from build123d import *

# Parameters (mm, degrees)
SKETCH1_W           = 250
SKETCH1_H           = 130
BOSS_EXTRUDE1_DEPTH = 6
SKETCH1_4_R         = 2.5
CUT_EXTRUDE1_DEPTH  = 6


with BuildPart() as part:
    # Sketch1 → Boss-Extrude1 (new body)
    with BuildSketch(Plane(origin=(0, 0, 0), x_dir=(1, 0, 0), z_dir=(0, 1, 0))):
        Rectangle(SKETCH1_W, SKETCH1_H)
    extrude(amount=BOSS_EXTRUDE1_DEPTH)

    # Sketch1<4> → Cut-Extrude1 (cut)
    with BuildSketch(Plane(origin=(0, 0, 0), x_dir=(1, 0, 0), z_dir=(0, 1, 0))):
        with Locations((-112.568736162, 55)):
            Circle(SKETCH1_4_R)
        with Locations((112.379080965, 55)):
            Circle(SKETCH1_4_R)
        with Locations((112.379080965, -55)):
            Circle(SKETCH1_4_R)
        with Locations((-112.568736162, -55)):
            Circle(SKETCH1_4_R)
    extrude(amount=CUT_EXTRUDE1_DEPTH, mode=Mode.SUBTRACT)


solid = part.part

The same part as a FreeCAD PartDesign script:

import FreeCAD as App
import Part
import Sketcher
Q = App.Units.Quantity

doc = App.newDocument("Part")
body = doc.addObject("PartDesign::Body", "Body")

# Sketch on XZ plane
sketch1 = doc.addObject("Sketcher::SketchObject", "Sketch")
body.addObject(sketch1)
sketch1.AttachmentSupport = (doc.XZ_Plane, [""])
sketch1.MapMode = "FlatFace"
sketch1.addGeometry(Part.LineSegment(App.Vector(-125, -65, 0), App.Vector(-125, 65, 0)), False)
sketch1.addGeometry(Part.LineSegment(App.Vector(-125, 65, 0), App.Vector(125, 65, 0)), False)
sketch1.addGeometry(Part.LineSegment(App.Vector(125, 65, 0), App.Vector(125, -65, 0)), False)
sketch1.addGeometry(Part.LineSegment(App.Vector(125, -65, 0), App.Vector(-125, -65, 0)), False)
sketch1.addConstraint(Sketcher.Constraint("Coincident", 0, 2, 1, 1))
sketch1.addConstraint(Sketcher.Constraint("Coincident", 1, 2, 2, 1))
sketch1.addConstraint(Sketcher.Constraint("Coincident", 2, 2, 3, 1))
sketch1.addConstraint(Sketcher.Constraint("Coincident", 3, 2, 0, 1))
sketch1.addConstraint(Sketcher.Constraint("Vertical", 0))
sketch1.addConstraint(Sketcher.Constraint("Horizontal", 1))
sketch1.addConstraint(Sketcher.Constraint("Vertical", 2))
sketch1.addConstraint(Sketcher.Constraint("Horizontal", 3))
sketch1.addConstraint(Sketcher.Constraint("Symmetric", 0, 2, 2, 2, -1, 1))
sketch1.addConstraint(Sketcher.Constraint("DistanceX", 1, 1, 1, 2, Q("250 mm")))
sketch1.addConstraint(Sketcher.Constraint("DistanceY", 0, 1, 0, 2, Q("130 mm")))
pad1 = doc.addObject("PartDesign::Pad", "Pad")
body.addObject(pad1)
pad1.Profile = sketch1
pad1.Length = 6
pad1.Reversed = True

# Sketch on XZ plane
sketch2 = doc.addObject("Sketcher::SketchObject", "Sketch001")
body.addObject(sketch2)
sketch2.AttachmentSupport = (doc.XZ_Plane, [""])
sketch2.MapMode = "FlatFace"
sketch2.addGeometry(Part.Circle(App.Vector(-112.6, -55, 0), App.Vector(0, 0, 1), 2.5), False)
sketch2.addGeometry(Part.Circle(App.Vector(112.4, -55, 0), App.Vector(0, 0, 1), 2.5), False)
sketch2.addGeometry(Part.Circle(App.Vector(112.4, 55, 0), App.Vector(0, 0, 1), 2.5), False)
sketch2.addGeometry(Part.Circle(App.Vector(-112.6, 55, 0), App.Vector(0, 0, 1), 2.5), False)
sketch2.addConstraint(Sketcher.Constraint("Equal", 0, 1))
sketch2.addConstraint(Sketcher.Constraint("Equal", 1, 2))
sketch2.addConstraint(Sketcher.Constraint("Equal", 2, 3))
sketch2.addConstraint(Sketcher.Constraint("Symmetric", 1, 3, 2, 3, -1))
sketch2.addConstraint(Sketcher.Constraint("Symmetric", 0, 3, 3, 3, -1))
sketch2.addConstraint(Sketcher.Constraint("Horizontal", 0, 3, 1, 3))
sketch2.addConstraint(Sketcher.Constraint("Diameter", 0, Q("5 mm")))
sketch2.addConstraint(Sketcher.Constraint("DistanceY", 0, 3, -1, 1, Q("55 mm")))
sketch2.addConstraint(Sketcher.Constraint("DistanceX", -1, 1, 1, 3, Q("112.379081 mm")))
sketch2.addConstraint(Sketcher.Constraint("DistanceX", 0, 3, -1, 1, Q("112.568736 mm")))
pocket1 = doc.addObject("PartDesign::Pocket", "Pocket")
body.addObject(pocket1)
pocket1.Profile = sketch2
pocket1.Length = 6

doc.recompute()
